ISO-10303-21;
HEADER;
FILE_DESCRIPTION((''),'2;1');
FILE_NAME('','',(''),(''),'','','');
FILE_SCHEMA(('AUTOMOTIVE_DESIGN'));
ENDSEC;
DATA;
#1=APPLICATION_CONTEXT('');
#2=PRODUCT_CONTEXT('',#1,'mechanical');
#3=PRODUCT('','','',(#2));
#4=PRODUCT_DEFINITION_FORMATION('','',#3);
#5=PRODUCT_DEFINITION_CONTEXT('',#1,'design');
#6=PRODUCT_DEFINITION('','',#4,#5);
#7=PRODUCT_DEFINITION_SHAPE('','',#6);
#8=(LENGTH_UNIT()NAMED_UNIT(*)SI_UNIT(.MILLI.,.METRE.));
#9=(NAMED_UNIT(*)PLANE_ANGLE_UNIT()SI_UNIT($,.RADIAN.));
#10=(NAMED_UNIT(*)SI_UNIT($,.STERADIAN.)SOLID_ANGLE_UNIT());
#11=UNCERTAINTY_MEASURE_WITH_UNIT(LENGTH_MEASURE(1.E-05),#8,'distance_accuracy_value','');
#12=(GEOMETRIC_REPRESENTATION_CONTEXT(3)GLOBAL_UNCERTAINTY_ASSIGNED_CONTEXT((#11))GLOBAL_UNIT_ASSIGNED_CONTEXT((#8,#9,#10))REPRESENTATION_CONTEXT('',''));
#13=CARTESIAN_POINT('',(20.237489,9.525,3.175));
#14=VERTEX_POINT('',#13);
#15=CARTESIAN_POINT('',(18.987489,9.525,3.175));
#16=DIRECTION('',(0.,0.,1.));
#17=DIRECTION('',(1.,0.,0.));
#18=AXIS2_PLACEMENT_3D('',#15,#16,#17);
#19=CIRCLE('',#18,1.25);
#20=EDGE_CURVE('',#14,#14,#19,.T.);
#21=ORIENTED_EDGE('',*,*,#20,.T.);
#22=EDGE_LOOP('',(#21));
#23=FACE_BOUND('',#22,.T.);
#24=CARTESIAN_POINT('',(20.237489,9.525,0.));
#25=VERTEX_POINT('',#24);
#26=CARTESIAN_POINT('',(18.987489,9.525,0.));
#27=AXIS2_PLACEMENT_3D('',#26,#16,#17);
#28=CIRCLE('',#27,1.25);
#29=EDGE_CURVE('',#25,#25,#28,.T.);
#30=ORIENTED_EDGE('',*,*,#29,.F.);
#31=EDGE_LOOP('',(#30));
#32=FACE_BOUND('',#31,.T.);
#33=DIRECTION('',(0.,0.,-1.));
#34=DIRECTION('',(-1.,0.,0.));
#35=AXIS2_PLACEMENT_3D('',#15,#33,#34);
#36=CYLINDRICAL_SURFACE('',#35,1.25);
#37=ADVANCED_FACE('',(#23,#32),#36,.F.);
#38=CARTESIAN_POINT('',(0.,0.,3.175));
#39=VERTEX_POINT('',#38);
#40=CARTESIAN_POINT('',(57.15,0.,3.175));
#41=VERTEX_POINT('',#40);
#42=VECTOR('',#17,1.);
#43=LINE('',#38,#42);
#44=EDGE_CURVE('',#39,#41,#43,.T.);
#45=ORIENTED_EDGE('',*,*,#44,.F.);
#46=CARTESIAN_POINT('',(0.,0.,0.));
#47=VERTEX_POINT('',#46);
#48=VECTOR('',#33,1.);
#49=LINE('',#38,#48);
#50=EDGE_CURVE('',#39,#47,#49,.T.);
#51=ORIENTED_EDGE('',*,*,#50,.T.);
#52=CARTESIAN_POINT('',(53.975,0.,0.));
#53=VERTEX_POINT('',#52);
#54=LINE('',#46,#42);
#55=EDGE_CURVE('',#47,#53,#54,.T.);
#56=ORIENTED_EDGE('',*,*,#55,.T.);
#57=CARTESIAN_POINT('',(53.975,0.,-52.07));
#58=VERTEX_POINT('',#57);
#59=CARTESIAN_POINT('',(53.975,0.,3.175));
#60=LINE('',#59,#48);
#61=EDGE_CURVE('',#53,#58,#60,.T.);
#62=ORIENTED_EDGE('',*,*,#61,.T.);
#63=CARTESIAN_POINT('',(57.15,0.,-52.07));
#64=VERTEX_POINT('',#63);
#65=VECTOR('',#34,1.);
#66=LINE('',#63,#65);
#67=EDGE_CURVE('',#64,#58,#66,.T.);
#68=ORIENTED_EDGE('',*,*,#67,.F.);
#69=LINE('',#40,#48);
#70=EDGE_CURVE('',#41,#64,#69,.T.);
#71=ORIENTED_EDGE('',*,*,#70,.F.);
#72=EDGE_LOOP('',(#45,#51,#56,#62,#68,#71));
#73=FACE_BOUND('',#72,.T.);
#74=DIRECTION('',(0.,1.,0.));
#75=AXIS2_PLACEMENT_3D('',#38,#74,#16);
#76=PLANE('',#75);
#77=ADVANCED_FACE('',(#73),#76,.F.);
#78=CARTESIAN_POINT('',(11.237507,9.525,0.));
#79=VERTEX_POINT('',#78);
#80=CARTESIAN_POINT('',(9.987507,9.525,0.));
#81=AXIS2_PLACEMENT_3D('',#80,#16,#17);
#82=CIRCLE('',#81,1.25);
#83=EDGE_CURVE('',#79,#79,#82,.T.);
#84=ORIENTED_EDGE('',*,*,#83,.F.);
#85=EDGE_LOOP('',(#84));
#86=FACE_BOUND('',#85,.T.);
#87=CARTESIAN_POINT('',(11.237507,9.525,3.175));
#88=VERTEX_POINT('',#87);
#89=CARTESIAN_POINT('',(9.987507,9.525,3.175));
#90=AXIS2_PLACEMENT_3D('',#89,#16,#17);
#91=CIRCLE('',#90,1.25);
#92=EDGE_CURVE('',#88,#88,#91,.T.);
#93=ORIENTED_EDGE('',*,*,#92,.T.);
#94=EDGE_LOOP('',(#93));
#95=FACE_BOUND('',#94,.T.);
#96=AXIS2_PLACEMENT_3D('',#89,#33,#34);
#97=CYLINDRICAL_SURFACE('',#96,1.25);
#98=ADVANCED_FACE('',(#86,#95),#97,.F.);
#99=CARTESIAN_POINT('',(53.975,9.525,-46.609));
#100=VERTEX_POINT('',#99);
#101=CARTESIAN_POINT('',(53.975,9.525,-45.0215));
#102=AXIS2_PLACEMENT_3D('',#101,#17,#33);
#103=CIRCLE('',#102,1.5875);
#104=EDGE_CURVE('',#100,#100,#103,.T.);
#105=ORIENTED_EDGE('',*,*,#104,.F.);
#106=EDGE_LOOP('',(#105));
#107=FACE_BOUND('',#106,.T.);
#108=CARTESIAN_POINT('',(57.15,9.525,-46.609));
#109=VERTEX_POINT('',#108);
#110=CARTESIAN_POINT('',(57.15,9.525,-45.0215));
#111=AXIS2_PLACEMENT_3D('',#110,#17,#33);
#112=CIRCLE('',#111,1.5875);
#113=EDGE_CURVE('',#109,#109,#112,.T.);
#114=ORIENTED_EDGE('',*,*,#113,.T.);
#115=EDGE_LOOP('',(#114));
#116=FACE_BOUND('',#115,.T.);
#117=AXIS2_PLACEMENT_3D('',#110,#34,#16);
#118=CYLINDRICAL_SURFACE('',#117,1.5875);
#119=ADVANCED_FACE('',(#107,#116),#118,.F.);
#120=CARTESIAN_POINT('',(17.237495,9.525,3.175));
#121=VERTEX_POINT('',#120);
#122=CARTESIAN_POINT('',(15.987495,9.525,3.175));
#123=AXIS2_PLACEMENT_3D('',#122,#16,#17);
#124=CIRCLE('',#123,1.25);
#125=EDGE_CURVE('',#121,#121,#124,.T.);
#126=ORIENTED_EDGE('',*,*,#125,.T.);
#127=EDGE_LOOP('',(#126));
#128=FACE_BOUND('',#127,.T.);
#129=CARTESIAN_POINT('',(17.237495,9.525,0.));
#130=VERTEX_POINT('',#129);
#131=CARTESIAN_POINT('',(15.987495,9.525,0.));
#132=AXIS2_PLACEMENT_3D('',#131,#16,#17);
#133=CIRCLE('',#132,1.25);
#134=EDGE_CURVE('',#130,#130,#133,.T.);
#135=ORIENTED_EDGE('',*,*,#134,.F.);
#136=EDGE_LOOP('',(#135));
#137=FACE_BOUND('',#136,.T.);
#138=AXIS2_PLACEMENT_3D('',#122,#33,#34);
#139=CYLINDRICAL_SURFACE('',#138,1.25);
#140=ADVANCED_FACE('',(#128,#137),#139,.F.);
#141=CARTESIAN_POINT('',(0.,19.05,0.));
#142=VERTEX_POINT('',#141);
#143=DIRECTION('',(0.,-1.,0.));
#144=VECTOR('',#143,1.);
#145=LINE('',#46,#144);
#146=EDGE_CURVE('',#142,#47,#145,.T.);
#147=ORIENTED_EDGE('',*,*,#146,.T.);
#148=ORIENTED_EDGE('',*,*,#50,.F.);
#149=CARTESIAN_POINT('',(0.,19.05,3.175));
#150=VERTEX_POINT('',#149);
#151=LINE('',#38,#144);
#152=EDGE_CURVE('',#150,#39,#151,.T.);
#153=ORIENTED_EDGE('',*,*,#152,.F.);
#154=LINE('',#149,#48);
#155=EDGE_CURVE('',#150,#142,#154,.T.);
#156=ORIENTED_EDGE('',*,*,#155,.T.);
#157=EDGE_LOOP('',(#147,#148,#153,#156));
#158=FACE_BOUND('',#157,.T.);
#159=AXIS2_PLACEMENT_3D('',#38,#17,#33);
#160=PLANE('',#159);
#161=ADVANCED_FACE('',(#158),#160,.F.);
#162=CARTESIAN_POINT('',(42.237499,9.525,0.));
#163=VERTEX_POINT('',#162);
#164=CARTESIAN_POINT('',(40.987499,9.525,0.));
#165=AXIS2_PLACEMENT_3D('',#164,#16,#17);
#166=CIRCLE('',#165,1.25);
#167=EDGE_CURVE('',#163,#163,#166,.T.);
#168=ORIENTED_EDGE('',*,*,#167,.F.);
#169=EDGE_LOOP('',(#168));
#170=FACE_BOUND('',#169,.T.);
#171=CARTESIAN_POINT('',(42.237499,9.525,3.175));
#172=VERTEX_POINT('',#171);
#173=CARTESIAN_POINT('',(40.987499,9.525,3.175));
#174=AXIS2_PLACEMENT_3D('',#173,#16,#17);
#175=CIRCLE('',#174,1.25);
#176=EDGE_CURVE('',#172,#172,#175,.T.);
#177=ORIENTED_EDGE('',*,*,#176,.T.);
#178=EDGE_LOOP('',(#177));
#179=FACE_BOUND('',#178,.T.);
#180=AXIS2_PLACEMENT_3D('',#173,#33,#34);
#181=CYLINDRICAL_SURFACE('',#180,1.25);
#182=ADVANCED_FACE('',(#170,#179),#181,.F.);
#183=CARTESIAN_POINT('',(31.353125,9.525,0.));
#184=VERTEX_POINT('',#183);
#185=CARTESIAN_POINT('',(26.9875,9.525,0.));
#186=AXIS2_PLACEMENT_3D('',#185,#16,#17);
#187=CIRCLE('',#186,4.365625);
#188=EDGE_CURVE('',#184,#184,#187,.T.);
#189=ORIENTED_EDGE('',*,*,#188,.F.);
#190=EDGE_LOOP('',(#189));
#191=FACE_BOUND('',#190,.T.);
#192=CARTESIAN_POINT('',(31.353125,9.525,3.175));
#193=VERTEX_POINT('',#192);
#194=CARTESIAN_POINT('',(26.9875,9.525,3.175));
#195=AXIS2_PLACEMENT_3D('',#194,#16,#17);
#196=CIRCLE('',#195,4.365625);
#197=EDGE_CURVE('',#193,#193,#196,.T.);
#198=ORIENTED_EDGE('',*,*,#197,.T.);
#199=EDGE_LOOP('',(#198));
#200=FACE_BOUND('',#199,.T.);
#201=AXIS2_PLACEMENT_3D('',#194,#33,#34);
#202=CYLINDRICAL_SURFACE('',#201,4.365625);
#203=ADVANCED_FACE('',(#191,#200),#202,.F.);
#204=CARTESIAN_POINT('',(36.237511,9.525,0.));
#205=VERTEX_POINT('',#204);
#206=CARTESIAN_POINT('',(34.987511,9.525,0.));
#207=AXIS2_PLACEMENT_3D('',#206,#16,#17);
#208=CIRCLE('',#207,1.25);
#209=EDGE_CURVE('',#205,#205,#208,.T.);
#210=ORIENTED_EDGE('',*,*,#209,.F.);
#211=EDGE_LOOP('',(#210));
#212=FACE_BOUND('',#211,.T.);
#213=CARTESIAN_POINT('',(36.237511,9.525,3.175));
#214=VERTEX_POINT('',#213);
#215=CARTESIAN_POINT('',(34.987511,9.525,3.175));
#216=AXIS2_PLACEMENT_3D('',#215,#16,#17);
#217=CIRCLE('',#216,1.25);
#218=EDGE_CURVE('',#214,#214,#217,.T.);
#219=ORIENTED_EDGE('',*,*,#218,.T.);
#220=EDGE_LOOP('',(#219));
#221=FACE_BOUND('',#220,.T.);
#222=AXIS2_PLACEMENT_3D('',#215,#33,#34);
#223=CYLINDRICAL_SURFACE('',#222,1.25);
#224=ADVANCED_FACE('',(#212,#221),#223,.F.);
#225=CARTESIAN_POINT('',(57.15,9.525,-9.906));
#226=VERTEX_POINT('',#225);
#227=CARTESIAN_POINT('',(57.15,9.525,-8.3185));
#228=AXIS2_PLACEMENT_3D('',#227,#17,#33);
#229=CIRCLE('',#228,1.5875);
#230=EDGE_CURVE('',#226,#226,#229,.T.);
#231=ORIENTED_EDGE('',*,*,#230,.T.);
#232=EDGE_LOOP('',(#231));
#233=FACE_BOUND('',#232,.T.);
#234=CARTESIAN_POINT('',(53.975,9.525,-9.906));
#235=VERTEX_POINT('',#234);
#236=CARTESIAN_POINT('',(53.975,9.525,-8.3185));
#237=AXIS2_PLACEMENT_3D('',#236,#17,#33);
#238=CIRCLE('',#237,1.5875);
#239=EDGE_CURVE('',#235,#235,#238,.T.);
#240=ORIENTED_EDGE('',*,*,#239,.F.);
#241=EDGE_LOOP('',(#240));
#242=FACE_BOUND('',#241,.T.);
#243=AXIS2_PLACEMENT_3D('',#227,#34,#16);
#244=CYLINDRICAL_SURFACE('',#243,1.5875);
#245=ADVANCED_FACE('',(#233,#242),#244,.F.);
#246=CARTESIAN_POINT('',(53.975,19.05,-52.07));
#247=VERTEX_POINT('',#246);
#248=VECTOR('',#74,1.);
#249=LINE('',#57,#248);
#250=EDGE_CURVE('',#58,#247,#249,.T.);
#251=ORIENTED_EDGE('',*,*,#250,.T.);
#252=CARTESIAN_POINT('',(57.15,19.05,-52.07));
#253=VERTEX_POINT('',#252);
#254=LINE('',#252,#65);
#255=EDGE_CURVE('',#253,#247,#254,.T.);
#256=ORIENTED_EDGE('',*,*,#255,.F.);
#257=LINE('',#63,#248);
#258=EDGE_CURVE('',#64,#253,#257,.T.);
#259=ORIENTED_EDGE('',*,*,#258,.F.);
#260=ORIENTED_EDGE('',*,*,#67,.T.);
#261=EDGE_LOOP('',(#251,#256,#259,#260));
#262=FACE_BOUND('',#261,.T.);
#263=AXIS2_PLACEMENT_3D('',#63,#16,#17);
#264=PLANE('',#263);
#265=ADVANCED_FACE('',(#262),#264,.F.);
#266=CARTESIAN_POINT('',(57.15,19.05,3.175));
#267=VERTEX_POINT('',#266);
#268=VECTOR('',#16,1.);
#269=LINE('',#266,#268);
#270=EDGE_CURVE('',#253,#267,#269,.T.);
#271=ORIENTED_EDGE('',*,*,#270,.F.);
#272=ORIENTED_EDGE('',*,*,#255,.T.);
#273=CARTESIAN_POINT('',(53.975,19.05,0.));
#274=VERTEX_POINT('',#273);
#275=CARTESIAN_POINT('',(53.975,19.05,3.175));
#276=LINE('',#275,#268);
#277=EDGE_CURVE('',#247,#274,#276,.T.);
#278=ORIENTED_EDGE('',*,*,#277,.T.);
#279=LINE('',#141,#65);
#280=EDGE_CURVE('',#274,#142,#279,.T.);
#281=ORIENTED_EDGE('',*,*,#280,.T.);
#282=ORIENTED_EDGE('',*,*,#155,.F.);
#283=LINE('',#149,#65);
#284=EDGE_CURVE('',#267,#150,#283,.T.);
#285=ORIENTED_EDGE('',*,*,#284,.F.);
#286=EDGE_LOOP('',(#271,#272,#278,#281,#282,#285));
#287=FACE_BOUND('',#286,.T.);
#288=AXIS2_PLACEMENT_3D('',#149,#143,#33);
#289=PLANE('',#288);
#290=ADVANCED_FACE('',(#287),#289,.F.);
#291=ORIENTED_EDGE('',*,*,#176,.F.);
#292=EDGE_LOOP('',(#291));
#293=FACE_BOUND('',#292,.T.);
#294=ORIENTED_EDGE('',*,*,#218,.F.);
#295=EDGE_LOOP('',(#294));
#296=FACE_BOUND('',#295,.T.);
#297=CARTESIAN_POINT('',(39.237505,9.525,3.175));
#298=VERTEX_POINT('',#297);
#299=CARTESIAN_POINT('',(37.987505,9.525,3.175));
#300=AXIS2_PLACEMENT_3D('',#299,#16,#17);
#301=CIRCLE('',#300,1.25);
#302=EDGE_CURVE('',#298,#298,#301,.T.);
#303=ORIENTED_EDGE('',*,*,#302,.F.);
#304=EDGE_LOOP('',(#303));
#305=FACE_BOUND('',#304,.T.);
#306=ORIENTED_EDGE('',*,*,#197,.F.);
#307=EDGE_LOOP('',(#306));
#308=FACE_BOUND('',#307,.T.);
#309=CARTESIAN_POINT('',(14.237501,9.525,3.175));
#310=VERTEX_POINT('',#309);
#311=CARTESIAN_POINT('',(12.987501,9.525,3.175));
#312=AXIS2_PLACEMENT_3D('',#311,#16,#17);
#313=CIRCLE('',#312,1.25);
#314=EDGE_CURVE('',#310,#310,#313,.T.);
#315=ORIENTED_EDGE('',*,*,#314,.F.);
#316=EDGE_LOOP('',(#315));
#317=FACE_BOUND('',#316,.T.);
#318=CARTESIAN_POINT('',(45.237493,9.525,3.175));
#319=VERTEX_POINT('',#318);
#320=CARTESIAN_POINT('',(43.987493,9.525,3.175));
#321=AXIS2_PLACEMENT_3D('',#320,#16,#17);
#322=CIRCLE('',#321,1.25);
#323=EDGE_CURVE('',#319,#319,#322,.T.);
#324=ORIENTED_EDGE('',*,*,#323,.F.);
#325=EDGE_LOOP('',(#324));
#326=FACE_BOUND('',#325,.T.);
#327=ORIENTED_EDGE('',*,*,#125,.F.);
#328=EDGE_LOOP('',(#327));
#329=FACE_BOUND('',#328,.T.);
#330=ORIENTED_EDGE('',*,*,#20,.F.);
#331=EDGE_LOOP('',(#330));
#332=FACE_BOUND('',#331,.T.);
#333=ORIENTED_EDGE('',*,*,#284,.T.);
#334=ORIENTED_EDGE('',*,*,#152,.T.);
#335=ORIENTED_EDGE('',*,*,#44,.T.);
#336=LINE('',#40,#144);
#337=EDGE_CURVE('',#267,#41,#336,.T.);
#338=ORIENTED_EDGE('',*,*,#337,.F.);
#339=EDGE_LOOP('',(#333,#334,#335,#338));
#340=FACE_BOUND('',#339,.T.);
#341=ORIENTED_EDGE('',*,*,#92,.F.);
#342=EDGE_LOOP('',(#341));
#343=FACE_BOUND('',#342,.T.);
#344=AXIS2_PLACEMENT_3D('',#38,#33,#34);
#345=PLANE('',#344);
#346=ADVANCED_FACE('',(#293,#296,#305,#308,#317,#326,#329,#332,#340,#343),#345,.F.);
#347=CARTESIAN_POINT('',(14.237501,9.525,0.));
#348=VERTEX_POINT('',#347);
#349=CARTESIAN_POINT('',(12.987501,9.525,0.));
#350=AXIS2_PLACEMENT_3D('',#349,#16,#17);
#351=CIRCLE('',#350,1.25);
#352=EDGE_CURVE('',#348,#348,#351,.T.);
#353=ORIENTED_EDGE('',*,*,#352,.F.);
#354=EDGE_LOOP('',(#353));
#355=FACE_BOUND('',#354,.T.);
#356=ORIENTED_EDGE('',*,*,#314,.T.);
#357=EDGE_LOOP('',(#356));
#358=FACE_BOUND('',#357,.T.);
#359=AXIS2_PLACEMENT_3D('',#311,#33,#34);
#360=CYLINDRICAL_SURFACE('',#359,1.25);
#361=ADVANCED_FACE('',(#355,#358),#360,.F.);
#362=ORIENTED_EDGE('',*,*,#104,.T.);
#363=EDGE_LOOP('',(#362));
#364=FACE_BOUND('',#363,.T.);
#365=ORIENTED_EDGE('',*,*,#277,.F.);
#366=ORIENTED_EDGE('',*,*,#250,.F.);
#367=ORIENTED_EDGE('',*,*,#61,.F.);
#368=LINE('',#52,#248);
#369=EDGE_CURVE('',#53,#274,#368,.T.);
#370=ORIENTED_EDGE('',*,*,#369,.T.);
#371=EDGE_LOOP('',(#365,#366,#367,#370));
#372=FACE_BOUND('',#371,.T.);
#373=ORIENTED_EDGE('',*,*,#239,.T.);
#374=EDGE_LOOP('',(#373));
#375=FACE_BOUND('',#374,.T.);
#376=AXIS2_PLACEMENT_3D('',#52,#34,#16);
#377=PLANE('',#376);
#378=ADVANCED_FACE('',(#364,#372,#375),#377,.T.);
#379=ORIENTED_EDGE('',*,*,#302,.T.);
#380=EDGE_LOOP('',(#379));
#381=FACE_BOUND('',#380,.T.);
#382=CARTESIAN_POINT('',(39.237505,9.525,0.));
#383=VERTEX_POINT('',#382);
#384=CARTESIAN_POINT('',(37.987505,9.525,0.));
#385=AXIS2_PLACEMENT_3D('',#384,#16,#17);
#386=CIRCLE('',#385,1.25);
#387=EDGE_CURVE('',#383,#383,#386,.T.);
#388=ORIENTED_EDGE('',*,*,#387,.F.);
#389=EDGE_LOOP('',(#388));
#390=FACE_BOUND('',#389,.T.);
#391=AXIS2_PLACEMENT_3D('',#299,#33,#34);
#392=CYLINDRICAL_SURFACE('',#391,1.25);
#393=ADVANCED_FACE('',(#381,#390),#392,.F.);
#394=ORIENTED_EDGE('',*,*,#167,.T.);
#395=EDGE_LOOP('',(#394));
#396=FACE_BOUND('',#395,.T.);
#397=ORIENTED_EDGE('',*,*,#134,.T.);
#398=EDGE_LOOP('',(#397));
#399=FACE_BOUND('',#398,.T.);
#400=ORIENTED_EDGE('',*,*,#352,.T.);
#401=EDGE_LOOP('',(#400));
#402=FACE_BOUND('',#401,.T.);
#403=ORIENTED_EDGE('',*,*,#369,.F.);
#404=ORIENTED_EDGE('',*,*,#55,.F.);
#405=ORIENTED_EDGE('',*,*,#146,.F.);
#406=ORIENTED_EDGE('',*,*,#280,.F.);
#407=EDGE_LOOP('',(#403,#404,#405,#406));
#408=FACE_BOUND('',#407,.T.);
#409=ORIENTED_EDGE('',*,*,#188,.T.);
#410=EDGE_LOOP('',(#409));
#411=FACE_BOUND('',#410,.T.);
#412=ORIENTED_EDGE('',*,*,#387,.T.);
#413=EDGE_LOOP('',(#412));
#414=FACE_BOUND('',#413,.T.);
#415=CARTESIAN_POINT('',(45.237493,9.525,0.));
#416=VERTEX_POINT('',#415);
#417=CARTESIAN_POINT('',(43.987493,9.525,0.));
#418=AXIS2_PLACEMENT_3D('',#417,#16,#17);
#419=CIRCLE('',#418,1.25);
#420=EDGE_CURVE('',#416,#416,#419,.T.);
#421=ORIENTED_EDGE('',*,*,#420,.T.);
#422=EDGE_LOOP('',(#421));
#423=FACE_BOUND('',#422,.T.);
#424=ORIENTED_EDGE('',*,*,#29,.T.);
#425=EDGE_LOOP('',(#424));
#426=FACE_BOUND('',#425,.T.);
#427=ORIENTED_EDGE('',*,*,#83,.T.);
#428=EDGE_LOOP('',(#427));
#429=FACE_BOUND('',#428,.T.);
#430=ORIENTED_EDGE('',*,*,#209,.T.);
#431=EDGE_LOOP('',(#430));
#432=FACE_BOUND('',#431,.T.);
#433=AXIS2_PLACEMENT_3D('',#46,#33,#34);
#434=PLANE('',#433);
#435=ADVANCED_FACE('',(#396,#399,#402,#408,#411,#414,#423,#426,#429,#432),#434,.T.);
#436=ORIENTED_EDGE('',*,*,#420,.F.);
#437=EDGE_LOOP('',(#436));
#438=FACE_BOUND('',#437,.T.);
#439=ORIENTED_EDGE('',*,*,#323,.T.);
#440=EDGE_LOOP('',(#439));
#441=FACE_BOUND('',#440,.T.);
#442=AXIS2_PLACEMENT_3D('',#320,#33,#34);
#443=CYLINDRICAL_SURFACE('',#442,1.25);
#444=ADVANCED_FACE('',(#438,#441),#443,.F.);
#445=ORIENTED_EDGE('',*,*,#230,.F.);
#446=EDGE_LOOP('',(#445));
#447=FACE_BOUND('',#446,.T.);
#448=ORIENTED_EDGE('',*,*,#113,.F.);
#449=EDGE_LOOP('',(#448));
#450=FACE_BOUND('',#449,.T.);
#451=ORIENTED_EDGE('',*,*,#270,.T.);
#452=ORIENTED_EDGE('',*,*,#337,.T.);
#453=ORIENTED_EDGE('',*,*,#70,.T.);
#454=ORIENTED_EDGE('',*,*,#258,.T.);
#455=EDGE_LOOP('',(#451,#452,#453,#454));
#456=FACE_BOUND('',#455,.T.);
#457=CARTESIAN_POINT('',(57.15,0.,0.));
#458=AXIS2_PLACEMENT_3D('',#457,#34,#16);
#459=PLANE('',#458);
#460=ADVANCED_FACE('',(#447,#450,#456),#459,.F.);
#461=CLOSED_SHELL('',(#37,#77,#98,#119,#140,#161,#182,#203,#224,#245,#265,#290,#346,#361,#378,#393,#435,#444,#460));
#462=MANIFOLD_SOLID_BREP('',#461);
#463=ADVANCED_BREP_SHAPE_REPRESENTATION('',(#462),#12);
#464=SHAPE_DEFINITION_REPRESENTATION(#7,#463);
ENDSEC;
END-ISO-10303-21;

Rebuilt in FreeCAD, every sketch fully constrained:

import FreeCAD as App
import Part
import Sketcher
from FreeCAD import Vector
Q = App.Units.Quantity


def add_polygon(sketch, points):
    """Adds a closed chain of lines whose ends are joined by coincident constraints."""
    first, n = sketch.GeometryCount, len(points)
    for a, b in zip(points, points[1:] + points[:1]):
        sketch.addGeometry(Part.LineSegment(App.Vector(*a, 0), App.Vector(*b, 0)), False)
    for i in range(n):
        sketch.addConstraint(Sketcher.Constraint("Coincident", first + i, 2, first + (i + 1) % n, 1))

doc = App.newDocument("Part")
body = doc.addObject("PartDesign::Body", "Body")

sketch1 = doc.addObject("Sketcher::SketchObject", "Sketch")
body.addObject(sketch1)
sketch1.AttachmentSupport = (doc.XY_Plane, [""])
sketch1.MapMode = "FlatFace"
add_polygon(sketch1, [(0, 19.05), (0, 0), (53.975, 0), (53.975, 19.05)])
sketch1.addGeometry(Part.Circle(Vector(9.987507, 9.525, 0), Vector(0, 0, 1), 1.25), False)
sketch1.addGeometry(Part.Circle(Vector(12.987501, 9.525, 0), Vector(0, 0, 1), 1.25), False)
sketch1.addGeometry(Part.Circle(Vector(15.987495, 9.525, 0), Vector(0, 0, 1), 1.25), False)
sketch1.addGeometry(Part.Circle(Vector(18.987489, 9.525, 0), Vector(0, 0, 1), 1.25), False)
sketch1.addGeometry(Part.Circle(Vector(26.9875, 9.525, 0), Vector(0, 0, 1), 4.365625), False)
sketch1.addGeometry(Part.Circle(Vector(34.987511, 9.525, 0), Vector(0, 0, 1), 1.25), False)
sketch1.addGeometry(Part.Circle(Vector(37.987505, 9.525, 0), Vector(0, 0, 1), 1.25), False)
sketch1.addGeometry(Part.Circle(Vector(40.987499, 9.525, 0), Vector(0, 0, 1), 1.25), False)
sketch1.addGeometry(Part.Circle(Vector(43.987493, 9.525, 0), Vector(0, 0, 1), 1.25), False)
sketch1.addConstraint([
    Sketcher.Constraint("Vertical", 0),
    Sketcher.Constraint("Horizontal", 1),
    Sketcher.Constraint("Vertical", 2),
    Sketcher.Constraint("Horizontal", 3),
    Sketcher.Constraint("Coincident", 0, 2, -1, 1),
    Sketcher.Constraint("Equal", 4, 5),
    Sketcher.Constraint("Equal", 5, 6),
    Sketcher.Constraint("Equal", 6, 7),
    Sketcher.Constraint("Equal", 7, 9),
    Sketcher.Constraint("Equal", 9, 10),
    Sketcher.Constraint("Equal", 10, 11),
    Sketcher.Constraint("Equal", 11, 12),
    Sketcher.Constraint("Horizontal", 4, 3, 5, 3),
    Sketcher.Constraint("Horizontal", 5, 3, 6, 3),
    Sketcher.Constraint("Horizontal", 6, 3, 7, 3),
    Sketcher.Constraint("Horizontal", 7, 3, 8, 3),
    Sketcher.Constraint("Horizontal", 8, 3, 9, 3),
    Sketcher.Constraint("Horizontal", 9, 3, 10, 3),
    Sketcher.Constraint("Horizontal", 10, 3, 11, 3),
    Sketcher.Constraint("Horizontal", 11, 3, 12, 3),
    Sketcher.Constraint("Diameter", 8, Q("0.34375 in")),
    Sketcher.Constraint("DistanceY", 0, 2, 0, 1, Q("0.75 in")),
    Sketcher.Constraint("Diameter", 4, 2.5),
    Sketcher.Constraint("DistanceX", 1, 1, 1, 2, Q("2.125 in")),
    Sketcher.Constraint("DistanceY", -1, 1, 4, 3, Q("0.375 in")),
    Sketcher.Constraint("DistanceX", -1, 1, 8, 3, Q("1.0625 in")),
    Sketcher.Constraint("DistanceX", -1, 1, 5, 3, 12.987501),
    Sketcher.Constraint("DistanceX", -1, 1, 11, 3, 40.987499),
    Sketcher.Constraint("DistanceX", -1, 1, 7, 3, 18.987489),
    Sketcher.Constraint("DistanceX", -1, 1, 9, 3, 34.987511),
    Sketcher.Constraint("DistanceX", 4, 3, 7, 3, 8.999982),
    Sketcher.Constraint("DistanceX", 6, 3, 10, 3, 22.000011),
    Sketcher.Constraint("DistanceX", 9, 3, 12, 3, 8.999982),
    Sketcher.Constraint("DistanceX", -1, 1, 6, 3, 15.987495),
])
pad1 = doc.addObject("PartDesign::Pad", "Pad")
body.addObject(pad1)
pad1.Profile = sketch1
pad1.Length = Q("0.125 in")

sketch2 = doc.addObject("Sketcher::SketchObject", "Sketch001")
body.addObject(sketch2)
sketch2.AttachmentSupport = (doc.YZ_Plane, [""])
sketch2.MapMode = "FlatFace"
sketch2.AttachmentOffset = App.Placement(Vector(0, 0, 2.125 * 25.4), App.Rotation())
add_polygon(sketch2, [(19.05, 3.175), (0, 3.175), (0, -52.07), (19.05, -52.07)])
sketch2.addGeometry(Part.Circle(Vector(9.525, -8.3185, 0), Vector(0, 0, 1), 1.5875), False)
sketch2.addGeometry(Part.Circle(Vector(9.525, -45.0215, 0), Vector(0, 0, 1), 1.5875), False)
sketch2.addConstraint([
    Sketcher.Constraint("Horizontal", 0),
    Sketcher.Constraint("Vertical", 1),
    Sketcher.Constraint("Horizontal", 2),
    Sketcher.Constraint("Vertical", 3),
    Sketcher.Constraint("Equal", 4, 5),
    Sketcher.Constraint("PointOnObject", 0, 2, -2),
    Sketcher.Constraint("Vertical", 4, 3, 5, 3),
    Sketcher.Constraint("Diameter", 4, Q("0.125 in")),
    Sketcher.Constraint("DistanceX", 0, 2, 0, 1, Q("0.75 in")),
    Sketcher.Constraint("DistanceY", 1, 2, 1, 1, Q("2.175 in")),
    Sketcher.Constraint("DistanceY", 1, 2, -1, 1, Q("2.05 in")),
    Sketcher.Constraint("DistanceX", -1, 1, 4, 3, Q("0.375 in")),
    Sketcher.Constraint("DistanceY", 5, 3, 4, 3, Q("1.445 in")),
    Sketcher.Constraint("DistanceY", 4, 3, -1, 1, Q("0.3275 in")),
])
pad2 = doc.addObject("PartDesign::Pad", "Pad001")
body.addObject(pad2)
pad2.Profile = sketch2
pad2.Length = Q("0.125 in")

doc.recompute()
